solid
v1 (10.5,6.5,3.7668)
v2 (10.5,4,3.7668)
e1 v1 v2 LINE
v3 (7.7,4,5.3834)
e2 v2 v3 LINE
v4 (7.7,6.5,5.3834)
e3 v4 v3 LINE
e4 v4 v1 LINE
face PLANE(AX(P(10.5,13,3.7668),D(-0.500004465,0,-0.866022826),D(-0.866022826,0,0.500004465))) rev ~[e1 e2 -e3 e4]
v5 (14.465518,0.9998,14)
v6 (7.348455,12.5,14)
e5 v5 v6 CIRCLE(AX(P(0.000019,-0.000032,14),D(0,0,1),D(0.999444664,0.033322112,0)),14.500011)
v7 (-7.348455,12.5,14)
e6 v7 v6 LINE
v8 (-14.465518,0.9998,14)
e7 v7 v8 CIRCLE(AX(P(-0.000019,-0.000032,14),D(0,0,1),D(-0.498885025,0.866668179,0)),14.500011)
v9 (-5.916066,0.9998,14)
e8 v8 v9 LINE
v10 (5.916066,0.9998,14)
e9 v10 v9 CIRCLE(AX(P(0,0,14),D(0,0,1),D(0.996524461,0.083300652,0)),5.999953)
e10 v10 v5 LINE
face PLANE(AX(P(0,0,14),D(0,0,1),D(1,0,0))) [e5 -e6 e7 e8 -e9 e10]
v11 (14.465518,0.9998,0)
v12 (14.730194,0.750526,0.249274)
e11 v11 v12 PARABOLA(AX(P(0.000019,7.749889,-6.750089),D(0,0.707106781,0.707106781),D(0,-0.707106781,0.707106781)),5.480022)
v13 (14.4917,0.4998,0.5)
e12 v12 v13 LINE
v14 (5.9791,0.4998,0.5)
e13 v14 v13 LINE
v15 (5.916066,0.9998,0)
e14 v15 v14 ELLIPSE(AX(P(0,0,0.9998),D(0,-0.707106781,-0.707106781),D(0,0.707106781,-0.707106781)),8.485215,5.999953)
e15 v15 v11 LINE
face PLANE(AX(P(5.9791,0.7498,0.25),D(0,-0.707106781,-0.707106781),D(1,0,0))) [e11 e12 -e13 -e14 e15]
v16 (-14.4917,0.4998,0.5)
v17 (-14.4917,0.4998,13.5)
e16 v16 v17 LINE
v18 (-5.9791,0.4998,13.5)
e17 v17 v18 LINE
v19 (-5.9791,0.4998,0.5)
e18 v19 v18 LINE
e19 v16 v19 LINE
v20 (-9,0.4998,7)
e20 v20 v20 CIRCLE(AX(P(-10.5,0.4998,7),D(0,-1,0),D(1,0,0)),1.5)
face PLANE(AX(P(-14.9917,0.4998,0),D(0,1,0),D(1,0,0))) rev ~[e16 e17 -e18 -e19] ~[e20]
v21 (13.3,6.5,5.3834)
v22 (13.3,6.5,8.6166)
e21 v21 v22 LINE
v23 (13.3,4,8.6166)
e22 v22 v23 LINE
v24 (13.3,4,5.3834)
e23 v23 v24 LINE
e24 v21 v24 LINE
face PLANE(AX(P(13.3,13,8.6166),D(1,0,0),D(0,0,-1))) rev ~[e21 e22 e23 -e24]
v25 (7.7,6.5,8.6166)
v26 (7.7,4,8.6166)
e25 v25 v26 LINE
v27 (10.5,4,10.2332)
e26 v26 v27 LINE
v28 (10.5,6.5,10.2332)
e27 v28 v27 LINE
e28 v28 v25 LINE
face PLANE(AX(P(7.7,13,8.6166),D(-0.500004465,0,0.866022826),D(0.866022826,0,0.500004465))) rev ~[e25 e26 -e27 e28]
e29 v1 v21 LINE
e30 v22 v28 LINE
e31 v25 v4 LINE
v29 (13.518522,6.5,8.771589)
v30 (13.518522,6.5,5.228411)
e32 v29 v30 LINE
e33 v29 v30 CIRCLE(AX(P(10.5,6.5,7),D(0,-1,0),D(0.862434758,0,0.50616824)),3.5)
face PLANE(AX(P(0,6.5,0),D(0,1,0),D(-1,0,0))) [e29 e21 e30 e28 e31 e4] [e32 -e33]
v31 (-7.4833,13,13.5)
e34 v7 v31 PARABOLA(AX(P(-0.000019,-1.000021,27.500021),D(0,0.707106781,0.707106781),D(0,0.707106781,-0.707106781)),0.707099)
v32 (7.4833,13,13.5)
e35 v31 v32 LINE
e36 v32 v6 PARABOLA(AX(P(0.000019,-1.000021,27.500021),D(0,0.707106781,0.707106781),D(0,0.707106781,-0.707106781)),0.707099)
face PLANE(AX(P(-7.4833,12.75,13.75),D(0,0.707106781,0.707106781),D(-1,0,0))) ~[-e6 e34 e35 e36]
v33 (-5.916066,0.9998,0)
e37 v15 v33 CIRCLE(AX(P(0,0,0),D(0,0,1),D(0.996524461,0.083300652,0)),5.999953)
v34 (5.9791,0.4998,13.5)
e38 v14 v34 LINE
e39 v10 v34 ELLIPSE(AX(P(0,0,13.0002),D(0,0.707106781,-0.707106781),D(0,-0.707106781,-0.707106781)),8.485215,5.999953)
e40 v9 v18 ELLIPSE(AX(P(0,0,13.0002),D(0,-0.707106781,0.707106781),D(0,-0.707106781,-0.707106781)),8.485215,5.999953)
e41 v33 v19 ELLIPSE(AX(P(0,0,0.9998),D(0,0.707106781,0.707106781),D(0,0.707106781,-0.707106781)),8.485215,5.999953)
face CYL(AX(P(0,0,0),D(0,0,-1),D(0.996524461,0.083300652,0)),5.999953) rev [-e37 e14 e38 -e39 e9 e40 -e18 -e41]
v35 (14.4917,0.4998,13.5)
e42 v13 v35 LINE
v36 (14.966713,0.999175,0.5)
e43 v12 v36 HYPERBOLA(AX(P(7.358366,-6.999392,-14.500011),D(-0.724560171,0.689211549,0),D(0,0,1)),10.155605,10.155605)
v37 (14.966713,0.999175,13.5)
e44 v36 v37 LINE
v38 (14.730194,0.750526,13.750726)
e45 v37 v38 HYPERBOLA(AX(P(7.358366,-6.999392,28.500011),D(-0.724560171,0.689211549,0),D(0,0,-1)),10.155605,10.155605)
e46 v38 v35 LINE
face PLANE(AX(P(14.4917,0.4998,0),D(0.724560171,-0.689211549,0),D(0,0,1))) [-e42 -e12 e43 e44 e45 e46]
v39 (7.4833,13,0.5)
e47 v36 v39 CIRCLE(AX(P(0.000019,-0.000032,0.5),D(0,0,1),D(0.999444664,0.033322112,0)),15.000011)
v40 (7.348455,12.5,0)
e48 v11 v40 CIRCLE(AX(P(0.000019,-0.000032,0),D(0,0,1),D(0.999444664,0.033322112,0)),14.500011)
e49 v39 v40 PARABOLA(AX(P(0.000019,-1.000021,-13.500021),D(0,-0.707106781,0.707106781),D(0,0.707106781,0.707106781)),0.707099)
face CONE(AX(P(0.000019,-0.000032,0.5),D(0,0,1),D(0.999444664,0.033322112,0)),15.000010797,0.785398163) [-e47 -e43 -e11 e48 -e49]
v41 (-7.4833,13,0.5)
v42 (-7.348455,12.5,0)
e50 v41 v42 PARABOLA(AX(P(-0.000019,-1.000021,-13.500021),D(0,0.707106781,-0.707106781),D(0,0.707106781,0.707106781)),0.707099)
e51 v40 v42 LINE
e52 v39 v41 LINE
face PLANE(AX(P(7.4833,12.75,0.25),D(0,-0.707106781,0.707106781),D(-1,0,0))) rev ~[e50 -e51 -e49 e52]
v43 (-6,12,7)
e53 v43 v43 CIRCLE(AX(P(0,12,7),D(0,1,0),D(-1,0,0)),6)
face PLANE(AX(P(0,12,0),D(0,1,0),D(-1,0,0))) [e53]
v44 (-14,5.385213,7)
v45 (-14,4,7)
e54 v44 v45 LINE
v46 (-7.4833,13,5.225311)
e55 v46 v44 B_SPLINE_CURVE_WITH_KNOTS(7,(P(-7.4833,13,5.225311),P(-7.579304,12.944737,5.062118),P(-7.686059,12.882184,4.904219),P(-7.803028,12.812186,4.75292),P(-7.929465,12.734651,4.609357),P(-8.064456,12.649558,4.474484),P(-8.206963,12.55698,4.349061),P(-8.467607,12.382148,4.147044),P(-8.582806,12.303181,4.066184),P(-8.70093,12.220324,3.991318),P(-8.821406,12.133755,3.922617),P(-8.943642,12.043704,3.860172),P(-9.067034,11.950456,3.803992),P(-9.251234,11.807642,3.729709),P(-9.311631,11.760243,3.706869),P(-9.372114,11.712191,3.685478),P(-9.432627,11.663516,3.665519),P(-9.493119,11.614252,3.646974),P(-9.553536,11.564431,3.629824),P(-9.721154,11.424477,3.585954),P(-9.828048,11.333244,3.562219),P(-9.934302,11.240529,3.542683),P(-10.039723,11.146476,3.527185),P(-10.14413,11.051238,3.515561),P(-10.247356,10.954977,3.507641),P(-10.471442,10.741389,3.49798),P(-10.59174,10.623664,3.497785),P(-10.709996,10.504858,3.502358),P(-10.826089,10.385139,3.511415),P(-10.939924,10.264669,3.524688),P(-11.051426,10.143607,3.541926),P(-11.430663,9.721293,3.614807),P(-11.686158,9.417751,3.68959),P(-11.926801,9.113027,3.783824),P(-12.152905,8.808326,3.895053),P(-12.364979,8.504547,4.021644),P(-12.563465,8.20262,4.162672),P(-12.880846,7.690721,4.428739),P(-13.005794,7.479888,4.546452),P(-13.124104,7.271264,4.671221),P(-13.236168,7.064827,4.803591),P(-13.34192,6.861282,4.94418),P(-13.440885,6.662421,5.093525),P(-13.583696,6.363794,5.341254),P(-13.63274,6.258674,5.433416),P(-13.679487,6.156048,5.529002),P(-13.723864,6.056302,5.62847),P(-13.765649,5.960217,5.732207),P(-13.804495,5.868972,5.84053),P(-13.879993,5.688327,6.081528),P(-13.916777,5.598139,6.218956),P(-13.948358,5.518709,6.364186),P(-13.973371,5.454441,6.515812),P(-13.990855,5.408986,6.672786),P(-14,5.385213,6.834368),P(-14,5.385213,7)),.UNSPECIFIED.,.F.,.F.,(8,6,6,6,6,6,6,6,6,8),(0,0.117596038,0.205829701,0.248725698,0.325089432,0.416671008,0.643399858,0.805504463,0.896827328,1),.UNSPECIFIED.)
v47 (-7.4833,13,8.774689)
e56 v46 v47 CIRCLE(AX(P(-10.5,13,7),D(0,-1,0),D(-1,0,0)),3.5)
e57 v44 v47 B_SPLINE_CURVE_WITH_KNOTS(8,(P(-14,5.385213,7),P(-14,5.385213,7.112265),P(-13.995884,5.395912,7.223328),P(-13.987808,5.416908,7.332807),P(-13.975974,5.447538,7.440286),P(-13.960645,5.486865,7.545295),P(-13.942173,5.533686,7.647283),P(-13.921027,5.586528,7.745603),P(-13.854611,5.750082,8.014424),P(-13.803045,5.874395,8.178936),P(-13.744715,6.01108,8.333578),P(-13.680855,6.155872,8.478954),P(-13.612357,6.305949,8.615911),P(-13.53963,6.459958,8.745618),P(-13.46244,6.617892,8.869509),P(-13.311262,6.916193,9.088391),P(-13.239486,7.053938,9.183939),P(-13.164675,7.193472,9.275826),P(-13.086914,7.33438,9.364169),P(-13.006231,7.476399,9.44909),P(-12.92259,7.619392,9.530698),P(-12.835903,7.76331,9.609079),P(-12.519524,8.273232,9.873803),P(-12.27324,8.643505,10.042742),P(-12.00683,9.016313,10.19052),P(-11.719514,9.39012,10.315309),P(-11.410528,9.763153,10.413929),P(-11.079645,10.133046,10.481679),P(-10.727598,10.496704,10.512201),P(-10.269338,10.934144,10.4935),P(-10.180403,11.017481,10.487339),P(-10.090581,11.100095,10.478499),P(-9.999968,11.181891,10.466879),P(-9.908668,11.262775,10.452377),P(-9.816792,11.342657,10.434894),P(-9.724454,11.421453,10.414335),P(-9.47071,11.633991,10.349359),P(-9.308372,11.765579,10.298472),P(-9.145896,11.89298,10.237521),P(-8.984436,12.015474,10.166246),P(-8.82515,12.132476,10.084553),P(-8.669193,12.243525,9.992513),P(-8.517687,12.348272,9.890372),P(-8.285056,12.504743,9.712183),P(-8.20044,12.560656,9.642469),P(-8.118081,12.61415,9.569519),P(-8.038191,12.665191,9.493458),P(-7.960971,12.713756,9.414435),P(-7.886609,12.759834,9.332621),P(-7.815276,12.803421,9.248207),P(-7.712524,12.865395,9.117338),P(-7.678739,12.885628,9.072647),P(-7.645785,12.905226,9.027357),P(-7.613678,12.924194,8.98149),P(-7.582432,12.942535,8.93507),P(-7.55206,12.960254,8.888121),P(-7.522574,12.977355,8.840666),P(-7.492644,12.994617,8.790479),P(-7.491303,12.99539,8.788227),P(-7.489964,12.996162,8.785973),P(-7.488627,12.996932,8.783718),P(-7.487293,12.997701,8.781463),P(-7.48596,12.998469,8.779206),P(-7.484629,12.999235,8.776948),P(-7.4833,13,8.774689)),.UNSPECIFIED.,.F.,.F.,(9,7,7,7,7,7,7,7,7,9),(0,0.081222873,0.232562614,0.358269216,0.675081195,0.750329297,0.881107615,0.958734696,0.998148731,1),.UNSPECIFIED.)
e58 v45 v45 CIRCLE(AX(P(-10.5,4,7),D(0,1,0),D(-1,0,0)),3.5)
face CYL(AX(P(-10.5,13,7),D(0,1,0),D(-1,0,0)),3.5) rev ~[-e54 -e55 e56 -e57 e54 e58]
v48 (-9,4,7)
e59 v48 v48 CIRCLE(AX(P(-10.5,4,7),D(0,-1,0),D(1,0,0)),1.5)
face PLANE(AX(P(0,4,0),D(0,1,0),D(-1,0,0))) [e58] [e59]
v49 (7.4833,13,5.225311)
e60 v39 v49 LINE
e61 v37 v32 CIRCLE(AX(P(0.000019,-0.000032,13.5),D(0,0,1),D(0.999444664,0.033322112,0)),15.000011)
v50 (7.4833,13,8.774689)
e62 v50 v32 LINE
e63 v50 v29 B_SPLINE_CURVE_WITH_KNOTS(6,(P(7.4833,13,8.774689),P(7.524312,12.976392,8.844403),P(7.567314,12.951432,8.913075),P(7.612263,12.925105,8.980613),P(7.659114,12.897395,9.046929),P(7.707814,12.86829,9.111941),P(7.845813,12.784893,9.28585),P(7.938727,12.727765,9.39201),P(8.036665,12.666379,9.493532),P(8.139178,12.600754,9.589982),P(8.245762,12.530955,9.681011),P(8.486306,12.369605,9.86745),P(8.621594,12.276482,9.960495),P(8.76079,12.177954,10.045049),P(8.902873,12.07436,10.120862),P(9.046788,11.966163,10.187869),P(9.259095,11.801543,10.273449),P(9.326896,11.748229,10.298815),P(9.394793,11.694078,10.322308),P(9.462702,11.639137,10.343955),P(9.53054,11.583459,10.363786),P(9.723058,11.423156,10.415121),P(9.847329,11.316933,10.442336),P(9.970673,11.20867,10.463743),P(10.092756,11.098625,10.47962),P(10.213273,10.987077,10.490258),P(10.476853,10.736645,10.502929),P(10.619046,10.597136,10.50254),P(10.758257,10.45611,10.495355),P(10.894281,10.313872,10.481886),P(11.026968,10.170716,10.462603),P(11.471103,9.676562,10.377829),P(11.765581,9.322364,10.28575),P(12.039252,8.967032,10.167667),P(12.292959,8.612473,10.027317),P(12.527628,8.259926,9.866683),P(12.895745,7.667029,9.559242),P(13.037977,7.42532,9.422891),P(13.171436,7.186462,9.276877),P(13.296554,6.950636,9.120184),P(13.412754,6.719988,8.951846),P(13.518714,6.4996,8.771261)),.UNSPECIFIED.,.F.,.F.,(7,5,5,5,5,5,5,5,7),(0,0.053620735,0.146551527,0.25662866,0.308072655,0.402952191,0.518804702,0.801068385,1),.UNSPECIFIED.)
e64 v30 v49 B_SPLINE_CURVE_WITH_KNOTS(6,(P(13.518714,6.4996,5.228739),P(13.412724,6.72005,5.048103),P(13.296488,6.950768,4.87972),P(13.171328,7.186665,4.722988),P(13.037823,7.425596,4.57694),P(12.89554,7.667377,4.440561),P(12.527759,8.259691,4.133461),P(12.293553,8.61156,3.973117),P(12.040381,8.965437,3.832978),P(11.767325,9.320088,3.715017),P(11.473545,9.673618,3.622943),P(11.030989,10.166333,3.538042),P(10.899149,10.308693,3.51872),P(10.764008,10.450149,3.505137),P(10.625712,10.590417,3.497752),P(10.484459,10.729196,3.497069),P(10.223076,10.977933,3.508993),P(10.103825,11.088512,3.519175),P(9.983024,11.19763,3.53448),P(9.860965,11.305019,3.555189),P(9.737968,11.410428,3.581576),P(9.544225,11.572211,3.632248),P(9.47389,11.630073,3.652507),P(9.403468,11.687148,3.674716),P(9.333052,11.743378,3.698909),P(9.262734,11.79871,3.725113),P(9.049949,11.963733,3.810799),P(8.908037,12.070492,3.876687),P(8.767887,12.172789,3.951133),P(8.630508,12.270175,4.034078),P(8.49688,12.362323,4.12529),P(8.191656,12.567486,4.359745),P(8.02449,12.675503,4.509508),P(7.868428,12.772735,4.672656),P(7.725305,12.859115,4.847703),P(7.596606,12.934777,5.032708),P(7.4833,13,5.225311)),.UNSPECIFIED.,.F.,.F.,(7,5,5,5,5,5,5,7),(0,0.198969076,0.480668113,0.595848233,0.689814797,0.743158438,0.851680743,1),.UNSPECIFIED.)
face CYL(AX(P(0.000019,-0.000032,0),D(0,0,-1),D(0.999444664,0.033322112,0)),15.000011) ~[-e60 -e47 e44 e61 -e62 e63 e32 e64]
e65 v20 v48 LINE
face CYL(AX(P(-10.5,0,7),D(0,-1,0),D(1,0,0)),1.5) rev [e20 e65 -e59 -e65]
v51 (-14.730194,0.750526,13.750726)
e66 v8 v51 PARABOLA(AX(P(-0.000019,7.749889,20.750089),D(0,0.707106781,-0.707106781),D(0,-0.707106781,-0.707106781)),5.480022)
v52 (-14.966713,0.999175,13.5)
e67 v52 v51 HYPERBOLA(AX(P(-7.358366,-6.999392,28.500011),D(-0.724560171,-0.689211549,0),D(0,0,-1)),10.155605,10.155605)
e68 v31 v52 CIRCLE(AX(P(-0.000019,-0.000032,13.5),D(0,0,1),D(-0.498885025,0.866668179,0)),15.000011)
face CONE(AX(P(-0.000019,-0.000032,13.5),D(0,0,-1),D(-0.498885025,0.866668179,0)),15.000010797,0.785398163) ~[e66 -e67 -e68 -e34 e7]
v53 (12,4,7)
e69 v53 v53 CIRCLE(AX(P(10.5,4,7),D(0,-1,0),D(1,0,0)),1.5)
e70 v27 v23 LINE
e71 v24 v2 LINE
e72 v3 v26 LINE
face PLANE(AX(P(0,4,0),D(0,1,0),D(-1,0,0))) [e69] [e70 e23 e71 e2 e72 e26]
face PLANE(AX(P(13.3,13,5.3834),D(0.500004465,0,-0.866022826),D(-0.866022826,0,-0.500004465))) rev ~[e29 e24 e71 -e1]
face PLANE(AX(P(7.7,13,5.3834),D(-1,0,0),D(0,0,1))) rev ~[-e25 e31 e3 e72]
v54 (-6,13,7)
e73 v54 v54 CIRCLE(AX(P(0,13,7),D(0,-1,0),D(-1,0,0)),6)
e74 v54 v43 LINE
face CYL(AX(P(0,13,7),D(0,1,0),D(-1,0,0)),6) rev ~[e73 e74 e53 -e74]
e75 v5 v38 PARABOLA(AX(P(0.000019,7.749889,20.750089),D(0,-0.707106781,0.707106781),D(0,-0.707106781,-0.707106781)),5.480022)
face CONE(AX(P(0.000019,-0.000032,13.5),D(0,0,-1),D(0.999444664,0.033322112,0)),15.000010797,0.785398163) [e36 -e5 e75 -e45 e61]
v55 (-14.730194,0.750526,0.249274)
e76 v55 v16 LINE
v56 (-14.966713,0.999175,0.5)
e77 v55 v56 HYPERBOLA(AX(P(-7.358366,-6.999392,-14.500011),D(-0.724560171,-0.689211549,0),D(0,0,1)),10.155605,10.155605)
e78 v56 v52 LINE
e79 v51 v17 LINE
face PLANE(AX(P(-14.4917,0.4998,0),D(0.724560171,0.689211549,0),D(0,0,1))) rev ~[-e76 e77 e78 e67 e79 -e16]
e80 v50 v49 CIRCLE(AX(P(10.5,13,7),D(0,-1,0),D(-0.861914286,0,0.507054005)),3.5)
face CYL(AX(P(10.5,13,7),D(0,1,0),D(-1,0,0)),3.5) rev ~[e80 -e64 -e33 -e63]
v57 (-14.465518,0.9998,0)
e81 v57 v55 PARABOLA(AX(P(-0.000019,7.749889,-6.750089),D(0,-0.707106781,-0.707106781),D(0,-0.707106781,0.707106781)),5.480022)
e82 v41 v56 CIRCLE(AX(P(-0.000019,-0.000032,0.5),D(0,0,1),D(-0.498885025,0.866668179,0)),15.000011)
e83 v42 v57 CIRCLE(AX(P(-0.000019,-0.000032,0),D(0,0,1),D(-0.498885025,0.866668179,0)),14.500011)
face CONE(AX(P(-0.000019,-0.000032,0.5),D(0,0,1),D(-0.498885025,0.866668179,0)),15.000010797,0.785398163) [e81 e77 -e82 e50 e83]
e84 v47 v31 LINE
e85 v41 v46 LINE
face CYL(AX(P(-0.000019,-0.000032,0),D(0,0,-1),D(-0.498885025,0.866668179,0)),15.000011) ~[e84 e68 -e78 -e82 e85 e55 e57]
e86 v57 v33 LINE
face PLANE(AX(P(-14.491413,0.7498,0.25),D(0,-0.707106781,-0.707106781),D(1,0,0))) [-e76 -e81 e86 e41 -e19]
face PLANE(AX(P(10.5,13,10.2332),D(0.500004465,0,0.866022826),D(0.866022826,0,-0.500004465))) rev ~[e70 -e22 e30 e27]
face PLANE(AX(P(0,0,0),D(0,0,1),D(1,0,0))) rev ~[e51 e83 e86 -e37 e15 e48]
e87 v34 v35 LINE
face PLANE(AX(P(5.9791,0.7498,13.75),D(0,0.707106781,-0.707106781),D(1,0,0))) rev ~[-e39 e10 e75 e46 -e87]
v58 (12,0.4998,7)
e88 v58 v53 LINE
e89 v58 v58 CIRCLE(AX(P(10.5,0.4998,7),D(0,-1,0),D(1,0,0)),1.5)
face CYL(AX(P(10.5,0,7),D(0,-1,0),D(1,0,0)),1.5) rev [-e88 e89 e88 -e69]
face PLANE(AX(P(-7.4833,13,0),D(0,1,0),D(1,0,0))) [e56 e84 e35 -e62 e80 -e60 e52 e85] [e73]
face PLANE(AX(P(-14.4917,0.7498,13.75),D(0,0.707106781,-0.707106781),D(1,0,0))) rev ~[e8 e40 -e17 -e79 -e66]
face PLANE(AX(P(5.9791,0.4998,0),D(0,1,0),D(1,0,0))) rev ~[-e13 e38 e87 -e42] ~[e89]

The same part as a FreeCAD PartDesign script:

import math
import FreeCAD as App
import Part
import Sketcher
from FreeCAD import Vector
Q = App.Units.Quantity


def edges_at(feature, points):
    """Names of the edges that pass closest to the given points."""
    edges = feature.Shape.Edges
    near = lambda p: min(range(len(edges)), key=lambda i: edges[i].distToShape(Part.Vertex(*p))[0])
    return sorted({f"Edge{near(p) + 1}" for p in points})

doc = App.newDocument("Part")
body = doc.addObject("PartDesign::Body", "Body")

# Sketch on XY plane
sketch1 = body.newObject("Sketcher::SketchObject", "Sketch")
sketch1.AttachmentSupport = (doc.getObject("XY_Plane"), [""])
sketch1.MapMode = "FlatFace"
sketch1.addGeometry([
    Part.LineSegment(Vector(7, 13, 0), Vector(-7, 13, 0)),  # 0
    Part.ArcOfCircle(Part.Circle(Vector(0, 0, 0), Vector(0, 0, 1), 15), math.radians(120), math.radians(178)),  # 1
    Part.LineSegment(Vector(-15, 0, 0), Vector(-6, 0, 0)),  # 2
    Part.ArcOfCircle(Part.Circle(Vector(0, 0, 0), Vector(0, 0, 1), 6), math.radians(5), math.radians(175)),  # 3
    Part.LineSegment(Vector(6, 0, 0), Vector(15, 0, 0)),  # 4
    Part.ArcOfCircle(Part.Circle(Vector(0, 0, 0), Vector(0, 0, 1), 15), math.radians(2), math.radians(60)),  # 5
], False)
sketch1.addConstraint([
    Sketcher.Constraint("Coincident", 0, 2, 1, 1),
    Sketcher.Constraint("Coincident", 1, 2, 2, 1),
    Sketcher.Constraint("Coincident", 2, 2, 3, 2),
    Sketcher.Constraint("Coincident", 3, 1, 4, 1),
    Sketcher.Constraint("Coincident", 4, 2, 5, 1),
    Sketcher.Constraint("Coincident", 5, 2, 0, 1),
    Sketcher.Constraint("Horizontal", 0),
    Sketcher.Constraint("Horizontal", 2),
    Sketcher.Constraint("Horizontal", 4),
    Sketcher.Constraint("Coincident", 1, 3, -1, 1),
    Sketcher.Constraint("Coincident", 3, 3, -1, 1),
    Sketcher.Constraint("Coincident", 5, 3, -1, 1),
    Sketcher.Constraint("Equal", 1, 5),
    Sketcher.Constraint("Horizontal", 2, 2, 3, 1),
    Sketcher.Constraint("Radius", 1, 15.0),
    Sketcher.Constraint("Radius", 3, 6.0),
    Sketcher.Constraint("DistanceY", -1, 1, 0, 2, 13.0),
    Sketcher.Constraint("DistanceX", 2, 1, 2, 2, 9.0126),
])
pad1 = body.newObject("PartDesign::Pad", "Pad")
pad1.Profile = sketch1
pad1.Length = 14

# Sketch on XZ plane
sketch2 = body.newObject("Sketcher::SketchObject", "Sketch001")
sketch2.AttachmentSupport = (doc.getObject("XZ_Plane"), [""])
sketch2.MapMode = "FlatFace"
sketch2.AttachmentOffset = App.Placement(Vector(0, 0, -13), App.Rotation())
sketch2.addGeometry(Part.Circle(Vector(0, 7, 0), Vector(0, 0, 1), 6), False)
sketch2.addConstraint([
    Sketcher.Constraint("PointOnObject", 0, 3, -2),
    Sketcher.Constraint("Diameter", 0, 12.0),
    Sketcher.Constraint("DistanceY", -1, 1, 0, 3, 7.0),
])
pocket1 = body.newObject("PartDesign::Pocket", "Pocket")
pocket1.Profile = sketch2
pocket1.Length = 1
pocket1.Reversed = True

# Sketch on XZ plane
sketch3 = body.newObject("Sketcher::SketchObject", "Sketch002")
sketch3.AttachmentSupport = (doc.getObject("XZ_Plane"), [""])
sketch3.MapMode = "FlatFace"
sketch3.addGeometry([
    Part.Circle(Vector(10.5, 7, 0), Vector(0, 0, 1), 1.5),
    Part.Circle(Vector(-10.5, 7, 0), Vector(0, 0, 1), 1.5),
], False)
sketch3.addConstraint([
    Sketcher.Constraint("Equal", 0, 1),
    Sketcher.Constraint("Symmetric", 0, 3, 1, 3, -2),
    Sketcher.Constraint("Diameter", 0, 3.0),
    Sketcher.Constraint("DistanceY", -1, 1, 0, 3, 7.0),
    Sketcher.Constraint("DistanceX", 1, 3, 0, 3, 21.0),
])
pocket2 = body.newObject("PartDesign::Pocket", "Pocket001")
pocket2.Profile = sketch3
pocket2.Length = 13

# Sketch on XZ plane
sketch4 = body.newObject("Sketcher::SketchObject", "Sketch003")
sketch4.AttachmentSupport = (doc.getObject("XZ_Plane"), [""])
sketch4.MapMode = "FlatFace"
sketch4.AttachmentOffset = App.Placement(Vector(0, 0, -13), App.Rotation())
sketch4.addGeometry([
    Part.Circle(Vector(-10.5, 7, 0), Vector(0, 0, 1), 3.5),  # 0
    Part.LineSegment(Vector(7.7, 5.4, 0), Vector(7.7, 8.6, 0)),  # 1
    Part.LineSegment(Vector(7.7, 8.6, 0), Vector(10.5, 10.2, 0)),  # 2
    Part.LineSegment(Vector(10.5, 10.2, 0), Vector(13.3, 8.6, 0)),  # 3
    Part.LineSegment(Vector(13.3, 8.6, 0), Vector(13.3, 5.4, 0)),  # 4
    Part.LineSegment(Vector(13.3, 5.4, 0), Vector(10.5, 3.8, 0)),  # 5
    Part.LineSegment(Vector(10.5, 3.8, 0), Vector(7.7, 5.4, 0)),  # 6
], False)
sketch4.addConstraint([
    Sketcher.Constraint("Coincident", 1, 2, 2, 1),
    Sketcher.Constraint("Coincident", 2, 2, 3, 1),
    Sketcher.Constraint("Coincident", 3, 2, 4, 1),
    Sketcher.Constraint("Coincident", 4, 2, 5, 1),
    Sketcher.Constraint("Coincident", 5, 2, 6, 1),
    Sketcher.Constraint("Coincident", 6, 2, 1, 1),
    Sketcher.Constraint("Vertical", 1),
    Sketcher.Constraint("Vertical", 4),
    Sketcher.Constraint("Parallel", 2, 5),
    Sketcher.Constraint("Parallel", 3, 6),
    Sketcher.Constraint("Horizontal", 1, 2, 3, 2),
    Sketcher.Constraint("Horizontal", 4, 2, 6, 2),
    Sketcher.Constraint("Vertical", 2, 2, 5, 2),
    Sketcher.Constraint("Diameter", 0, 7.0),
    Sketcher.Constraint("Angle", 2, Q("30.0003 deg")),
    Sketcher.Constraint("DistanceY", -1, 1, 0, 3, 7.0),
    Sketcher.Constraint("DistanceX", 0, 3, 2, 2, 21.0),
    Sketcher.Constraint("DistanceX", 0, 3, -1, 1, 10.5),
    Sketcher.Constraint("DistanceX", -1, 1, 1, 2, 7.7),
    Sketcher.Constraint("DistanceY", 1, 1, 1, 2, 3.2332),
    Sketcher.Constraint("DistanceY", -1, 1, 1, 2, 8.6166),
])
pocket3 = body.newObject("PartDesign::Pocket", "Pocket002")
pocket3.Profile = sketch4
pocket3.Length = 9
pocket3.Reversed = True
doc.recompute()

chamfer = body.newObject("PartDesign::Chamfer", "Chamfer")
chamfer.Base = (pocket3, edges_at(pocket3, [
    (0, 13, 0),
    (-12.859, 7.724, 0),
    (-14.992, 0.5, 7),
    (-12.859, 7.724, 14),
    (0, 13, 14),
    (12.859, 7.724, 14),
    (12.859, 7.724, 0),
    (14.992, 0.5, 7),
]))
chamfer.Size = 0.5

# Sketch on XZ plane
sketch5 = body.newObject("Sketcher::SketchObject", "Sketch004")
sketch5.AttachmentSupport = (doc.getObject("XZ_Plane"), [""])
sketch5.MapMode = "FlatFace"
sketch5.AttachmentOffset = App.Placement(Vector(0, 0, -13), App.Rotation())
sketch5.addGeometry(Part.Circle(Vector(10.5, 7, 0), Vector(0, 0, 1), 3.5), False)
sketch5.addConstraint([
    Sketcher.Constraint("Diameter", 0, 7.0),
    Sketcher.Constraint("DistanceY", -1, 1, 0, 3, 7.0),
    Sketcher.Constraint("DistanceX", -1, 1, 0, 3, 10.5),
])
pocket4 = body.newObject("PartDesign::Pocket", "Pocket003")
pocket4.Profile = sketch5
pocket4.Length = 6.5
pocket4.Reversed = True
doc.recompute()

chamfer2 = body.newObject("PartDesign::Chamfer", "Chamfer001")
chamfer2.Base = (pocket4, edges_at(pocket4, [
    (-10.235, 0.5, 14),
    (-10.235, 0.5, 0),
    (10.235, 0.5, 0),
    (10.235, 0.5, 14),
]))
chamfer2.Size = 0.5

doc.recompute()
